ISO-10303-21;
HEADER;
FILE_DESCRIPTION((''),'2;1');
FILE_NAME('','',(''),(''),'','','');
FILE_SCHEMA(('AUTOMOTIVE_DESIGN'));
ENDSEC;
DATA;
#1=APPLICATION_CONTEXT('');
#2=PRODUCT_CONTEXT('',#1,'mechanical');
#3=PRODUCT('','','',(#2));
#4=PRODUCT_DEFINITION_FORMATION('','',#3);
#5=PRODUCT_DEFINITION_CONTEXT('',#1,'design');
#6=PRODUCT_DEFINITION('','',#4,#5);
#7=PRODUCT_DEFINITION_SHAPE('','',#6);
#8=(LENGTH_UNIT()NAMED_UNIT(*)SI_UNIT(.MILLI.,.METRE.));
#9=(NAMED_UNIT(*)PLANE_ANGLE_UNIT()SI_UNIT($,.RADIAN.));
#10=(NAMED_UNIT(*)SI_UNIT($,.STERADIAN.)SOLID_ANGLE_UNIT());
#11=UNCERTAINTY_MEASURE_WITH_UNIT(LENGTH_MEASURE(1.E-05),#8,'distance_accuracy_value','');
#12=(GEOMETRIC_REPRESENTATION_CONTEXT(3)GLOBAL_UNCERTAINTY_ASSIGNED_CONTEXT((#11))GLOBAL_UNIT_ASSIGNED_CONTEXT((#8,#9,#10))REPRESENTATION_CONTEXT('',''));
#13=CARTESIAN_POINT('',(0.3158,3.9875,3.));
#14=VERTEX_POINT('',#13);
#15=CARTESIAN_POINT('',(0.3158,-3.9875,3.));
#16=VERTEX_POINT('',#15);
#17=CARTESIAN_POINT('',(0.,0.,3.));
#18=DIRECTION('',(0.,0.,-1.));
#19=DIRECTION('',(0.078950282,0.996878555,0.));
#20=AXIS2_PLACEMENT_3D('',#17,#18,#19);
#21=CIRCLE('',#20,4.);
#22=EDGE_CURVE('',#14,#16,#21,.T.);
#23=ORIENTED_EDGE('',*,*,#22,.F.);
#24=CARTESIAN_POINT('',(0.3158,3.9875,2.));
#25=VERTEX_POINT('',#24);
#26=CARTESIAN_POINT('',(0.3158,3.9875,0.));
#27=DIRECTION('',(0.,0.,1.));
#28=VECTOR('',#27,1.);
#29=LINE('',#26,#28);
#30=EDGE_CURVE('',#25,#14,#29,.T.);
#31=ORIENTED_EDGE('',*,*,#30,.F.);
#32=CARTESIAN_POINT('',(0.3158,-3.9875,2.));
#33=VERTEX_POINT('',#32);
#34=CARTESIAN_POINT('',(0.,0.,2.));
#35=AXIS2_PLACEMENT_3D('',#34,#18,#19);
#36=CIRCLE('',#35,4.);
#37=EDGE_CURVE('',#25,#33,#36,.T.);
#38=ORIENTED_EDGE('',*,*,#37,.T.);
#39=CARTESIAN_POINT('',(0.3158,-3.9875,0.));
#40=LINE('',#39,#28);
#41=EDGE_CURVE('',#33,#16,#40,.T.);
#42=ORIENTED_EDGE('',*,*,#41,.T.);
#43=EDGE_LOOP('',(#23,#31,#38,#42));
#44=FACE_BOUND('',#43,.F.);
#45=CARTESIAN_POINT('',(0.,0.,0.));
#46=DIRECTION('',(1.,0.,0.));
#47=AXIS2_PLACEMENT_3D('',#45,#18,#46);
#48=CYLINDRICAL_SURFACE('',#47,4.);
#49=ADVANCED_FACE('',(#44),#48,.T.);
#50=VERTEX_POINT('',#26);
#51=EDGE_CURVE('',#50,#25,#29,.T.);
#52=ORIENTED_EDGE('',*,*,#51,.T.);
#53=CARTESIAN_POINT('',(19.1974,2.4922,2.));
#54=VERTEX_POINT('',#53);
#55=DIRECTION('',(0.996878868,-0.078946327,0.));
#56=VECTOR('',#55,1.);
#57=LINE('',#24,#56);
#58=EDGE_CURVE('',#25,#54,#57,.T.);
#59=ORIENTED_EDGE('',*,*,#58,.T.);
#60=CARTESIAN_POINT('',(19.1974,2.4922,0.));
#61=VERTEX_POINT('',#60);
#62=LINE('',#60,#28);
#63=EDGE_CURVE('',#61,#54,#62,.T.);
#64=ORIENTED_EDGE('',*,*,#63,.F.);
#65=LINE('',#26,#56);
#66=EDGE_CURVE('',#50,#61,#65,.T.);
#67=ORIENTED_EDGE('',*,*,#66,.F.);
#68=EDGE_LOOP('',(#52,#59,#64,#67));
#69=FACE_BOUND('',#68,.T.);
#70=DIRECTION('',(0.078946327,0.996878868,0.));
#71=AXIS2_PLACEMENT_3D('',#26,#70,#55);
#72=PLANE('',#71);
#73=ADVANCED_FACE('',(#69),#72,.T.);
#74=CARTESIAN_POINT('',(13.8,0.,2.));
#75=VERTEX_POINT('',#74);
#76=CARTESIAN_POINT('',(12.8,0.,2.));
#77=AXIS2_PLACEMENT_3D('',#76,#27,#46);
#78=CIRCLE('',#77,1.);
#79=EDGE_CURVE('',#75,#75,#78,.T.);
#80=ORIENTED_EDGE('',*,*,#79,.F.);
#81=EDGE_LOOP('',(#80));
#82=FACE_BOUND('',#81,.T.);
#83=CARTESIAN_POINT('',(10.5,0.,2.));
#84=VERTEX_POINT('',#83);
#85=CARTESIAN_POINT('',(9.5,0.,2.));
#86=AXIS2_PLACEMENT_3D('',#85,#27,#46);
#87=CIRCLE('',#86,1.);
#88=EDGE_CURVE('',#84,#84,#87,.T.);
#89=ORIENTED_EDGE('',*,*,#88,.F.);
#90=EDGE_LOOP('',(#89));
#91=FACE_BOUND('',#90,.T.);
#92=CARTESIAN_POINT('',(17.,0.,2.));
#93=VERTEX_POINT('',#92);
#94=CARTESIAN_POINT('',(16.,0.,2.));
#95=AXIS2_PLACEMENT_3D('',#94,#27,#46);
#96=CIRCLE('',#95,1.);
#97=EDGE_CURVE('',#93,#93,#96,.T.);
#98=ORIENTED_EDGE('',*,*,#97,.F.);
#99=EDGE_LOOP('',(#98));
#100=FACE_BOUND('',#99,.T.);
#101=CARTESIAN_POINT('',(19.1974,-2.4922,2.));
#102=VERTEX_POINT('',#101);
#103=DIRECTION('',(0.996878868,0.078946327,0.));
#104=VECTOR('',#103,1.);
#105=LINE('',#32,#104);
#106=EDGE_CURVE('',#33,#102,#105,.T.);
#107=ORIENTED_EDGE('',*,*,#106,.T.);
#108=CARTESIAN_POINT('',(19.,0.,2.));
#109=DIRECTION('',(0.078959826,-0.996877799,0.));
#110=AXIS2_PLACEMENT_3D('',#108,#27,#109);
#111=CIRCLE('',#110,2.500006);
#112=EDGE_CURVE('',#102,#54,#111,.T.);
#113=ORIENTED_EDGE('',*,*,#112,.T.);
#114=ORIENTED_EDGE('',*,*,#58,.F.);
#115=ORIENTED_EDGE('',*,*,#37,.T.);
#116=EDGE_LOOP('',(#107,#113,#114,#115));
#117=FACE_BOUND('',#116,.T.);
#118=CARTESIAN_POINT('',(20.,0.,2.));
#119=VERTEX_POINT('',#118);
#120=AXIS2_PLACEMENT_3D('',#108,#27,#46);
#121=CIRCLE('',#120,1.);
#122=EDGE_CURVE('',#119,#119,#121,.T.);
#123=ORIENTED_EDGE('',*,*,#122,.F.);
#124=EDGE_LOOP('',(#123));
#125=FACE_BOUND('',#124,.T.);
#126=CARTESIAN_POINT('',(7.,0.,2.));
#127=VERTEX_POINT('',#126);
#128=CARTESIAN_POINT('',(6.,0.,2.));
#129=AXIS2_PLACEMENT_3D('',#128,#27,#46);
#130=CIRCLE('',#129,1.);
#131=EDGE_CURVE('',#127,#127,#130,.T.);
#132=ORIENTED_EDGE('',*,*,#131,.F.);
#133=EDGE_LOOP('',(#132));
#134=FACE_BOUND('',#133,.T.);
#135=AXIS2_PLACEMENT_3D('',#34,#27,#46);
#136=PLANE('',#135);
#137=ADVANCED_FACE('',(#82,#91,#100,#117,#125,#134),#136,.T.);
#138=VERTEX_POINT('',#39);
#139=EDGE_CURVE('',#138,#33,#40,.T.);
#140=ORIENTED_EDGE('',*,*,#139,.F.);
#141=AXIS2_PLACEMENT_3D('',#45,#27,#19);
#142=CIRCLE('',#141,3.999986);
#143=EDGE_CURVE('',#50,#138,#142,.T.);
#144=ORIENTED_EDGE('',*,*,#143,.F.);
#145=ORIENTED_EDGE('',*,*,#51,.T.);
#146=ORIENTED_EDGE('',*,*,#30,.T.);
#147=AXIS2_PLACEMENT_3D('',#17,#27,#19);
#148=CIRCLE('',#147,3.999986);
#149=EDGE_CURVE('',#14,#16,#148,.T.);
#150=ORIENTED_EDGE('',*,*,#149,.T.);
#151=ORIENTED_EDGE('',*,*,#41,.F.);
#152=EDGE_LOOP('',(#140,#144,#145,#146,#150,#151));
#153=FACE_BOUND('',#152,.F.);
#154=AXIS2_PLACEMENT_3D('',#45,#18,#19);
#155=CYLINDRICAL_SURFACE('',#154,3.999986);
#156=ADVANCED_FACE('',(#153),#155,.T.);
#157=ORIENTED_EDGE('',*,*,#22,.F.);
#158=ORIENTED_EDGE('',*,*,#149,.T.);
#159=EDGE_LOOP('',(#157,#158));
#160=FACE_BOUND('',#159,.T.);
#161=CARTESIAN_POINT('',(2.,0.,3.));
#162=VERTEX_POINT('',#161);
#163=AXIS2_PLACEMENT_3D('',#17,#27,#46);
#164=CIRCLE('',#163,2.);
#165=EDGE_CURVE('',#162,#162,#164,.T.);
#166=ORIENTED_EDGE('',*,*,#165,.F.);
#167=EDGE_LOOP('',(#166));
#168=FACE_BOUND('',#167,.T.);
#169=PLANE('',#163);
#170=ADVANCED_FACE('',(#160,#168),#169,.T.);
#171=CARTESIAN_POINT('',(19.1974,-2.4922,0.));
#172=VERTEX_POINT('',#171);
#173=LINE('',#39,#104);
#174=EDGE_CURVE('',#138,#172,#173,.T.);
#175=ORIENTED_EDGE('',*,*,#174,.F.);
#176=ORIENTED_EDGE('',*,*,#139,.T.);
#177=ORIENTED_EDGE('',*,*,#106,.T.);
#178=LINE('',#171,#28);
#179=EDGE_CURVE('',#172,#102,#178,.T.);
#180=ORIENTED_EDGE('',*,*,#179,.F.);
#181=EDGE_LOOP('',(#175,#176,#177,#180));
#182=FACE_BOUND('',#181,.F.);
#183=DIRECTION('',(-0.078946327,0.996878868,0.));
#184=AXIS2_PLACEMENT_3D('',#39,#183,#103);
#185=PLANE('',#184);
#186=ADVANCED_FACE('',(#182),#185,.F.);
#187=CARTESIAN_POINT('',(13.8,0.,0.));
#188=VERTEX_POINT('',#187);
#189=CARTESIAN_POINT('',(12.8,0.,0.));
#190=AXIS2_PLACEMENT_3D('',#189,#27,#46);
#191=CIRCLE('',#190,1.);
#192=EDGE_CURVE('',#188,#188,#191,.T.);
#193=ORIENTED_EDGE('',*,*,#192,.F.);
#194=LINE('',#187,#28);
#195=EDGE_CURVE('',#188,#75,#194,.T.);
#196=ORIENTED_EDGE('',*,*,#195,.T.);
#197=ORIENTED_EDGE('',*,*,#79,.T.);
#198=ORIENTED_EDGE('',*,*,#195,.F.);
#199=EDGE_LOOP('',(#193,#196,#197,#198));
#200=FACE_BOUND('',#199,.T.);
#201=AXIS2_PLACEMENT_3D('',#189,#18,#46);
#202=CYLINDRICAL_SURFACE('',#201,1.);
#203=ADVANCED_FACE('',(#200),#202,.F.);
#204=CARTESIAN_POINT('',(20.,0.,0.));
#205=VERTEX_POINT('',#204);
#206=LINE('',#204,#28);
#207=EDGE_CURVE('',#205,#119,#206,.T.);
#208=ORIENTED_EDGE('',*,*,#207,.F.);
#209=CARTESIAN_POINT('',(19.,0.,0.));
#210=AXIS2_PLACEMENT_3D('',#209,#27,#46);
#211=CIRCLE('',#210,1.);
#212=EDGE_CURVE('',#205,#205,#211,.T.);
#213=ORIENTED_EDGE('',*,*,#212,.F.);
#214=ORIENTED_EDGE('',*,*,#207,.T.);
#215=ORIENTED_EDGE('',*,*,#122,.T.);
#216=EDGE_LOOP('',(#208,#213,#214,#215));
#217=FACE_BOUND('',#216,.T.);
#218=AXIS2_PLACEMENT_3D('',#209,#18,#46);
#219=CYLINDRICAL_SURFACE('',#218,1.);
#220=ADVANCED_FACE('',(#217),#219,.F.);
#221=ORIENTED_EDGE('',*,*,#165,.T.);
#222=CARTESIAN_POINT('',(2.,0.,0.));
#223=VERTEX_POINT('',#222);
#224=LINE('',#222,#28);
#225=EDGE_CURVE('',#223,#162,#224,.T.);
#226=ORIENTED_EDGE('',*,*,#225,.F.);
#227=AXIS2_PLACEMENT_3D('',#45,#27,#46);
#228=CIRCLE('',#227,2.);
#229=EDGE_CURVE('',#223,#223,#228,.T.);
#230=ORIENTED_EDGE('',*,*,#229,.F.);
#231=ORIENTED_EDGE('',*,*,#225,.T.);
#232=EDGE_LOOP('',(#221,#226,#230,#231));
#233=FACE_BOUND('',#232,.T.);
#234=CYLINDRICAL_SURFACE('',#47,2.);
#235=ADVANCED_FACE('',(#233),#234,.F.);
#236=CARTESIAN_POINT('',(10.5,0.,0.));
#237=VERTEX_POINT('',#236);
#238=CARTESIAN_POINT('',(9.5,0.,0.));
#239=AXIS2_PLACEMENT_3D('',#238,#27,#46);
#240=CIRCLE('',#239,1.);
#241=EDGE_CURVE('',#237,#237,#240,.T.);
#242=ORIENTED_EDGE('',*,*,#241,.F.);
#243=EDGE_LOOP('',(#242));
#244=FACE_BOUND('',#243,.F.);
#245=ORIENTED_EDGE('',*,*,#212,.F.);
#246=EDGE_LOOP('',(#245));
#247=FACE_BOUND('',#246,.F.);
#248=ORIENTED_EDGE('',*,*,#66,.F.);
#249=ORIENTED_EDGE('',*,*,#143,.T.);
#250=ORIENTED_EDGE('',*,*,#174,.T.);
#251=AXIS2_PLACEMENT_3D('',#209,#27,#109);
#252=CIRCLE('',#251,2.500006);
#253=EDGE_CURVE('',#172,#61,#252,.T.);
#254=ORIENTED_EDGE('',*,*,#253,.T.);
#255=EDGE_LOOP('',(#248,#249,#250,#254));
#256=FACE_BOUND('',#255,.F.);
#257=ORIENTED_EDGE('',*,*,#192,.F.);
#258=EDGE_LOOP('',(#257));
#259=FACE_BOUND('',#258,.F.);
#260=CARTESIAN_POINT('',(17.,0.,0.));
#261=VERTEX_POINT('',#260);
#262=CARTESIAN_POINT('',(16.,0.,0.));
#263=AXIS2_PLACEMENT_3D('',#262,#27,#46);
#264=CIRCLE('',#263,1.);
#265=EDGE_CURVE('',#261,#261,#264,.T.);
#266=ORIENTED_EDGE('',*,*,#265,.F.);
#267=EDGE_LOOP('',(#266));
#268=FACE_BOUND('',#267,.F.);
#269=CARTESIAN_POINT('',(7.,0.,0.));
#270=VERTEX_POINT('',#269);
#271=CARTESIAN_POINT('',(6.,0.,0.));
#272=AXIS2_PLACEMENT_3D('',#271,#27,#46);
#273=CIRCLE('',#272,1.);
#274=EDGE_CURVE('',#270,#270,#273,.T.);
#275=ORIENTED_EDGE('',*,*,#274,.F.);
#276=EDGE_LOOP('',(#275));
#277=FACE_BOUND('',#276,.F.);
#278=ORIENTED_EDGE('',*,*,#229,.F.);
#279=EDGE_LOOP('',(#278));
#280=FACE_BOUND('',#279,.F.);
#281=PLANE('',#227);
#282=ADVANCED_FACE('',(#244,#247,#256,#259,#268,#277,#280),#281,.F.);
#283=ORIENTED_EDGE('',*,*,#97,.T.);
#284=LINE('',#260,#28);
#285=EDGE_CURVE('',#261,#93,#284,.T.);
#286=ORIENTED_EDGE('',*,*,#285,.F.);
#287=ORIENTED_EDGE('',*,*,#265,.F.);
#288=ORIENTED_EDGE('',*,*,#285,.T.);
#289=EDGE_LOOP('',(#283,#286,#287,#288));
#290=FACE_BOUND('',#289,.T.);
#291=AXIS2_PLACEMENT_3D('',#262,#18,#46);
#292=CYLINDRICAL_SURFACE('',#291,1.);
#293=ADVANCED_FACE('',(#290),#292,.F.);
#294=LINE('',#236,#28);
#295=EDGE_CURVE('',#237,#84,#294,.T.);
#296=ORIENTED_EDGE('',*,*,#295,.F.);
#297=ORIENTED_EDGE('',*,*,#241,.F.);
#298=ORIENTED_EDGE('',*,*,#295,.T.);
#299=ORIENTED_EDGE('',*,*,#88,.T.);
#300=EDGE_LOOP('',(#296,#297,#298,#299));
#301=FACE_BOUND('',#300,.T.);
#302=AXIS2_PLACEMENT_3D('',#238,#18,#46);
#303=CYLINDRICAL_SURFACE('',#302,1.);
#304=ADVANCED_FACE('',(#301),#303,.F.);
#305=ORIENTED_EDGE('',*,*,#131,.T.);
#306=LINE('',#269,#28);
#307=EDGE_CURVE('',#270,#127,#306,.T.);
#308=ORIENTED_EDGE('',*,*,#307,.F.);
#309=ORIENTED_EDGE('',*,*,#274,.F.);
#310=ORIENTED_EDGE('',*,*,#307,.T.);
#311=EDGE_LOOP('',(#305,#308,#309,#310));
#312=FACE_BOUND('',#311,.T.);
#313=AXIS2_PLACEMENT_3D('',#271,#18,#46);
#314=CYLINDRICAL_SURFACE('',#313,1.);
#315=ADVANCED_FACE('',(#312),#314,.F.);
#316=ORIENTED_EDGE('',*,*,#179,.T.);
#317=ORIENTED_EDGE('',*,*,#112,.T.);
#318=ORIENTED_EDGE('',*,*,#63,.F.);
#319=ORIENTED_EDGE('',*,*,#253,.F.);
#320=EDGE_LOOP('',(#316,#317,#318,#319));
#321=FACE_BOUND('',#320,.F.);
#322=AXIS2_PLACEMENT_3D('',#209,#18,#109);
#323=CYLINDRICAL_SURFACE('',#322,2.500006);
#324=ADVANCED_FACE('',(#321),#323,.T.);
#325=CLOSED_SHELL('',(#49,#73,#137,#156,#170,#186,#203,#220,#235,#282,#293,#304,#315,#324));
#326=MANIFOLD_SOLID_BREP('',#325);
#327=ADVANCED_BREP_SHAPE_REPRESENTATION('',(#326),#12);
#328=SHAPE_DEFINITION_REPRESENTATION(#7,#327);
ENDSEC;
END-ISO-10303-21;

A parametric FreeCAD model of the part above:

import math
import FreeCAD as App
import Part
import Sketcher
from FreeCAD import Vector

doc = App.newDocument("Part")
body = doc.addObject("PartDesign::Body", "Body")

# Sketch on XY plane
sketch1 = doc.addObject("Sketcher::SketchObject", "Sketch")
body.addObject(sketch1)
sketch1.AttachmentSupport = (doc.XY_Plane, [""])
sketch1.MapMode = "FlatFace"
sketch1.addGeometry([
    Part.LineSegment(Vector(0.3158, -3.9875, 0), Vector(19.1974, -2.4922, 0)),  # 0
    Part.ArcOfCircle(Part.Circle(Vector(19, 0, 0), Vector(0, 0, 1), 2.500006), math.radians(-85.471221), math.radians(85.471221)),  # 1
    Part.LineSegment(Vector(19.1974, 2.4922, 0), Vector(0.3158, 3.9875, 0)),  # 2
    Part.ArcOfCircle(Part.Circle(Vector(0, 0, 0), Vector(0, 0, 1), 3.999986), math.radians(85.47177), math.radians(274.52823)),  # 3
    Part.Circle(Vector(6, 0, 0), Vector(0, 0, 1), 1),  # 4
    Part.Circle(Vector(9.5, 0, 0), Vector(0, 0, 1), 1),  # 5
    Part.Circle(Vector(12.8, 0, 0), Vector(0, 0, 1), 1),  # 6
    Part.Circle(Vector(16, 0, 0), Vector(0, 0, 1), 1),  # 7
    Part.Circle(Vector(19, 0, 0), Vector(0, 0, 1), 1),  # 8
    Part.Circle(Vector(0, 0, 0), Vector(0, 0, 1), 2),  # 9
], False)
sketch1.addConstraint([
    Sketcher.Constraint("Tangent", 0, 2, 1, 1),
    Sketcher.Constraint("Tangent", 1, 2, 2, 1),
    Sketcher.Constraint("Tangent", 2, 2, 3, 1),
    Sketcher.Constraint("Tangent", 3, 2, 0, 1),
    Sketcher.Constraint("Coincident", 3, 3, -1, 1),
    Sketcher.Constraint("Coincident", 9, 3, -1, 1),
    Sketcher.Constraint("Coincident", 8, 3, 1, 3),
    Sketcher.Constraint("Equal", 4, 5),
    Sketcher.Constraint("Equal", 5, 6),
    Sketcher.Constraint("Equal", 6, 7),
    Sketcher.Constraint("Equal", 7, 8),
    Sketcher.Constraint("PointOnObject", 1, 3, -1),
    Sketcher.Constraint("PointOnObject", 4, 3, -1),
    Sketcher.Constraint("PointOnObject", 5, 3, -1),
    Sketcher.Constraint("PointOnObject", 6, 3, -1),
    Sketcher.Constraint("PointOnObject", 7, 3, -1),
    Sketcher.Constraint("Diameter", 4, 2.0),
    Sketcher.Constraint("Diameter", 9, 4.0),
    Sketcher.Constraint("Radius", 3, 4.0),
    Sketcher.Constraint("Radius", 1, 2.5),
    Sketcher.Constraint("DistanceX", -1, 1, 1, 3, 19.0),
    Sketcher.Constraint("DistanceX", -1, 1, 4, 3, 6.0),
    Sketcher.Constraint("DistanceX", -1, 1, 7, 3, 16.0),
    Sketcher.Constraint("DistanceX", -1, 1, 5, 3, 9.5),
    Sketcher.Constraint("DistanceX", -1, 1, 6, 3, 12.8),
])
pad1 = doc.addObject("PartDesign::Pad", "Pad")
body.addObject(pad1)
pad1.Profile = sketch1
pad1.Length = 2

# Sketch on XY plane
sketch2 = doc.addObject("Sketcher::SketchObject", "Sketch001")
body.addObject(sketch2)
sketch2.AttachmentSupport = (doc.XY_Plane, [""])
sketch2.MapMode = "FlatFace"
sketch2.addGeometry([
    Part.Circle(Vector(0, 0, 0), Vector(0, 0, 1), 4),
    Part.Circle(Vector(0, 0, 0), Vector(0, 0, 1), 2),
], False)
sketch2.addConstraint([
    Sketcher.Constraint("Coincident", 0, 3, -1, 1),
    Sketcher.Constraint("Coincident", 1, 3, -1, 1),
    Sketcher.Constraint("Diameter", 0, 8.0),
    Sketcher.Constraint("Diameter", 1, 4.0),
])
pad2 = doc.addObject("PartDesign::Pad", "Pad001")
body.addObject(pad2)
pad2.Profile = sketch2
pad2.Length = 3

doc.recompute()
